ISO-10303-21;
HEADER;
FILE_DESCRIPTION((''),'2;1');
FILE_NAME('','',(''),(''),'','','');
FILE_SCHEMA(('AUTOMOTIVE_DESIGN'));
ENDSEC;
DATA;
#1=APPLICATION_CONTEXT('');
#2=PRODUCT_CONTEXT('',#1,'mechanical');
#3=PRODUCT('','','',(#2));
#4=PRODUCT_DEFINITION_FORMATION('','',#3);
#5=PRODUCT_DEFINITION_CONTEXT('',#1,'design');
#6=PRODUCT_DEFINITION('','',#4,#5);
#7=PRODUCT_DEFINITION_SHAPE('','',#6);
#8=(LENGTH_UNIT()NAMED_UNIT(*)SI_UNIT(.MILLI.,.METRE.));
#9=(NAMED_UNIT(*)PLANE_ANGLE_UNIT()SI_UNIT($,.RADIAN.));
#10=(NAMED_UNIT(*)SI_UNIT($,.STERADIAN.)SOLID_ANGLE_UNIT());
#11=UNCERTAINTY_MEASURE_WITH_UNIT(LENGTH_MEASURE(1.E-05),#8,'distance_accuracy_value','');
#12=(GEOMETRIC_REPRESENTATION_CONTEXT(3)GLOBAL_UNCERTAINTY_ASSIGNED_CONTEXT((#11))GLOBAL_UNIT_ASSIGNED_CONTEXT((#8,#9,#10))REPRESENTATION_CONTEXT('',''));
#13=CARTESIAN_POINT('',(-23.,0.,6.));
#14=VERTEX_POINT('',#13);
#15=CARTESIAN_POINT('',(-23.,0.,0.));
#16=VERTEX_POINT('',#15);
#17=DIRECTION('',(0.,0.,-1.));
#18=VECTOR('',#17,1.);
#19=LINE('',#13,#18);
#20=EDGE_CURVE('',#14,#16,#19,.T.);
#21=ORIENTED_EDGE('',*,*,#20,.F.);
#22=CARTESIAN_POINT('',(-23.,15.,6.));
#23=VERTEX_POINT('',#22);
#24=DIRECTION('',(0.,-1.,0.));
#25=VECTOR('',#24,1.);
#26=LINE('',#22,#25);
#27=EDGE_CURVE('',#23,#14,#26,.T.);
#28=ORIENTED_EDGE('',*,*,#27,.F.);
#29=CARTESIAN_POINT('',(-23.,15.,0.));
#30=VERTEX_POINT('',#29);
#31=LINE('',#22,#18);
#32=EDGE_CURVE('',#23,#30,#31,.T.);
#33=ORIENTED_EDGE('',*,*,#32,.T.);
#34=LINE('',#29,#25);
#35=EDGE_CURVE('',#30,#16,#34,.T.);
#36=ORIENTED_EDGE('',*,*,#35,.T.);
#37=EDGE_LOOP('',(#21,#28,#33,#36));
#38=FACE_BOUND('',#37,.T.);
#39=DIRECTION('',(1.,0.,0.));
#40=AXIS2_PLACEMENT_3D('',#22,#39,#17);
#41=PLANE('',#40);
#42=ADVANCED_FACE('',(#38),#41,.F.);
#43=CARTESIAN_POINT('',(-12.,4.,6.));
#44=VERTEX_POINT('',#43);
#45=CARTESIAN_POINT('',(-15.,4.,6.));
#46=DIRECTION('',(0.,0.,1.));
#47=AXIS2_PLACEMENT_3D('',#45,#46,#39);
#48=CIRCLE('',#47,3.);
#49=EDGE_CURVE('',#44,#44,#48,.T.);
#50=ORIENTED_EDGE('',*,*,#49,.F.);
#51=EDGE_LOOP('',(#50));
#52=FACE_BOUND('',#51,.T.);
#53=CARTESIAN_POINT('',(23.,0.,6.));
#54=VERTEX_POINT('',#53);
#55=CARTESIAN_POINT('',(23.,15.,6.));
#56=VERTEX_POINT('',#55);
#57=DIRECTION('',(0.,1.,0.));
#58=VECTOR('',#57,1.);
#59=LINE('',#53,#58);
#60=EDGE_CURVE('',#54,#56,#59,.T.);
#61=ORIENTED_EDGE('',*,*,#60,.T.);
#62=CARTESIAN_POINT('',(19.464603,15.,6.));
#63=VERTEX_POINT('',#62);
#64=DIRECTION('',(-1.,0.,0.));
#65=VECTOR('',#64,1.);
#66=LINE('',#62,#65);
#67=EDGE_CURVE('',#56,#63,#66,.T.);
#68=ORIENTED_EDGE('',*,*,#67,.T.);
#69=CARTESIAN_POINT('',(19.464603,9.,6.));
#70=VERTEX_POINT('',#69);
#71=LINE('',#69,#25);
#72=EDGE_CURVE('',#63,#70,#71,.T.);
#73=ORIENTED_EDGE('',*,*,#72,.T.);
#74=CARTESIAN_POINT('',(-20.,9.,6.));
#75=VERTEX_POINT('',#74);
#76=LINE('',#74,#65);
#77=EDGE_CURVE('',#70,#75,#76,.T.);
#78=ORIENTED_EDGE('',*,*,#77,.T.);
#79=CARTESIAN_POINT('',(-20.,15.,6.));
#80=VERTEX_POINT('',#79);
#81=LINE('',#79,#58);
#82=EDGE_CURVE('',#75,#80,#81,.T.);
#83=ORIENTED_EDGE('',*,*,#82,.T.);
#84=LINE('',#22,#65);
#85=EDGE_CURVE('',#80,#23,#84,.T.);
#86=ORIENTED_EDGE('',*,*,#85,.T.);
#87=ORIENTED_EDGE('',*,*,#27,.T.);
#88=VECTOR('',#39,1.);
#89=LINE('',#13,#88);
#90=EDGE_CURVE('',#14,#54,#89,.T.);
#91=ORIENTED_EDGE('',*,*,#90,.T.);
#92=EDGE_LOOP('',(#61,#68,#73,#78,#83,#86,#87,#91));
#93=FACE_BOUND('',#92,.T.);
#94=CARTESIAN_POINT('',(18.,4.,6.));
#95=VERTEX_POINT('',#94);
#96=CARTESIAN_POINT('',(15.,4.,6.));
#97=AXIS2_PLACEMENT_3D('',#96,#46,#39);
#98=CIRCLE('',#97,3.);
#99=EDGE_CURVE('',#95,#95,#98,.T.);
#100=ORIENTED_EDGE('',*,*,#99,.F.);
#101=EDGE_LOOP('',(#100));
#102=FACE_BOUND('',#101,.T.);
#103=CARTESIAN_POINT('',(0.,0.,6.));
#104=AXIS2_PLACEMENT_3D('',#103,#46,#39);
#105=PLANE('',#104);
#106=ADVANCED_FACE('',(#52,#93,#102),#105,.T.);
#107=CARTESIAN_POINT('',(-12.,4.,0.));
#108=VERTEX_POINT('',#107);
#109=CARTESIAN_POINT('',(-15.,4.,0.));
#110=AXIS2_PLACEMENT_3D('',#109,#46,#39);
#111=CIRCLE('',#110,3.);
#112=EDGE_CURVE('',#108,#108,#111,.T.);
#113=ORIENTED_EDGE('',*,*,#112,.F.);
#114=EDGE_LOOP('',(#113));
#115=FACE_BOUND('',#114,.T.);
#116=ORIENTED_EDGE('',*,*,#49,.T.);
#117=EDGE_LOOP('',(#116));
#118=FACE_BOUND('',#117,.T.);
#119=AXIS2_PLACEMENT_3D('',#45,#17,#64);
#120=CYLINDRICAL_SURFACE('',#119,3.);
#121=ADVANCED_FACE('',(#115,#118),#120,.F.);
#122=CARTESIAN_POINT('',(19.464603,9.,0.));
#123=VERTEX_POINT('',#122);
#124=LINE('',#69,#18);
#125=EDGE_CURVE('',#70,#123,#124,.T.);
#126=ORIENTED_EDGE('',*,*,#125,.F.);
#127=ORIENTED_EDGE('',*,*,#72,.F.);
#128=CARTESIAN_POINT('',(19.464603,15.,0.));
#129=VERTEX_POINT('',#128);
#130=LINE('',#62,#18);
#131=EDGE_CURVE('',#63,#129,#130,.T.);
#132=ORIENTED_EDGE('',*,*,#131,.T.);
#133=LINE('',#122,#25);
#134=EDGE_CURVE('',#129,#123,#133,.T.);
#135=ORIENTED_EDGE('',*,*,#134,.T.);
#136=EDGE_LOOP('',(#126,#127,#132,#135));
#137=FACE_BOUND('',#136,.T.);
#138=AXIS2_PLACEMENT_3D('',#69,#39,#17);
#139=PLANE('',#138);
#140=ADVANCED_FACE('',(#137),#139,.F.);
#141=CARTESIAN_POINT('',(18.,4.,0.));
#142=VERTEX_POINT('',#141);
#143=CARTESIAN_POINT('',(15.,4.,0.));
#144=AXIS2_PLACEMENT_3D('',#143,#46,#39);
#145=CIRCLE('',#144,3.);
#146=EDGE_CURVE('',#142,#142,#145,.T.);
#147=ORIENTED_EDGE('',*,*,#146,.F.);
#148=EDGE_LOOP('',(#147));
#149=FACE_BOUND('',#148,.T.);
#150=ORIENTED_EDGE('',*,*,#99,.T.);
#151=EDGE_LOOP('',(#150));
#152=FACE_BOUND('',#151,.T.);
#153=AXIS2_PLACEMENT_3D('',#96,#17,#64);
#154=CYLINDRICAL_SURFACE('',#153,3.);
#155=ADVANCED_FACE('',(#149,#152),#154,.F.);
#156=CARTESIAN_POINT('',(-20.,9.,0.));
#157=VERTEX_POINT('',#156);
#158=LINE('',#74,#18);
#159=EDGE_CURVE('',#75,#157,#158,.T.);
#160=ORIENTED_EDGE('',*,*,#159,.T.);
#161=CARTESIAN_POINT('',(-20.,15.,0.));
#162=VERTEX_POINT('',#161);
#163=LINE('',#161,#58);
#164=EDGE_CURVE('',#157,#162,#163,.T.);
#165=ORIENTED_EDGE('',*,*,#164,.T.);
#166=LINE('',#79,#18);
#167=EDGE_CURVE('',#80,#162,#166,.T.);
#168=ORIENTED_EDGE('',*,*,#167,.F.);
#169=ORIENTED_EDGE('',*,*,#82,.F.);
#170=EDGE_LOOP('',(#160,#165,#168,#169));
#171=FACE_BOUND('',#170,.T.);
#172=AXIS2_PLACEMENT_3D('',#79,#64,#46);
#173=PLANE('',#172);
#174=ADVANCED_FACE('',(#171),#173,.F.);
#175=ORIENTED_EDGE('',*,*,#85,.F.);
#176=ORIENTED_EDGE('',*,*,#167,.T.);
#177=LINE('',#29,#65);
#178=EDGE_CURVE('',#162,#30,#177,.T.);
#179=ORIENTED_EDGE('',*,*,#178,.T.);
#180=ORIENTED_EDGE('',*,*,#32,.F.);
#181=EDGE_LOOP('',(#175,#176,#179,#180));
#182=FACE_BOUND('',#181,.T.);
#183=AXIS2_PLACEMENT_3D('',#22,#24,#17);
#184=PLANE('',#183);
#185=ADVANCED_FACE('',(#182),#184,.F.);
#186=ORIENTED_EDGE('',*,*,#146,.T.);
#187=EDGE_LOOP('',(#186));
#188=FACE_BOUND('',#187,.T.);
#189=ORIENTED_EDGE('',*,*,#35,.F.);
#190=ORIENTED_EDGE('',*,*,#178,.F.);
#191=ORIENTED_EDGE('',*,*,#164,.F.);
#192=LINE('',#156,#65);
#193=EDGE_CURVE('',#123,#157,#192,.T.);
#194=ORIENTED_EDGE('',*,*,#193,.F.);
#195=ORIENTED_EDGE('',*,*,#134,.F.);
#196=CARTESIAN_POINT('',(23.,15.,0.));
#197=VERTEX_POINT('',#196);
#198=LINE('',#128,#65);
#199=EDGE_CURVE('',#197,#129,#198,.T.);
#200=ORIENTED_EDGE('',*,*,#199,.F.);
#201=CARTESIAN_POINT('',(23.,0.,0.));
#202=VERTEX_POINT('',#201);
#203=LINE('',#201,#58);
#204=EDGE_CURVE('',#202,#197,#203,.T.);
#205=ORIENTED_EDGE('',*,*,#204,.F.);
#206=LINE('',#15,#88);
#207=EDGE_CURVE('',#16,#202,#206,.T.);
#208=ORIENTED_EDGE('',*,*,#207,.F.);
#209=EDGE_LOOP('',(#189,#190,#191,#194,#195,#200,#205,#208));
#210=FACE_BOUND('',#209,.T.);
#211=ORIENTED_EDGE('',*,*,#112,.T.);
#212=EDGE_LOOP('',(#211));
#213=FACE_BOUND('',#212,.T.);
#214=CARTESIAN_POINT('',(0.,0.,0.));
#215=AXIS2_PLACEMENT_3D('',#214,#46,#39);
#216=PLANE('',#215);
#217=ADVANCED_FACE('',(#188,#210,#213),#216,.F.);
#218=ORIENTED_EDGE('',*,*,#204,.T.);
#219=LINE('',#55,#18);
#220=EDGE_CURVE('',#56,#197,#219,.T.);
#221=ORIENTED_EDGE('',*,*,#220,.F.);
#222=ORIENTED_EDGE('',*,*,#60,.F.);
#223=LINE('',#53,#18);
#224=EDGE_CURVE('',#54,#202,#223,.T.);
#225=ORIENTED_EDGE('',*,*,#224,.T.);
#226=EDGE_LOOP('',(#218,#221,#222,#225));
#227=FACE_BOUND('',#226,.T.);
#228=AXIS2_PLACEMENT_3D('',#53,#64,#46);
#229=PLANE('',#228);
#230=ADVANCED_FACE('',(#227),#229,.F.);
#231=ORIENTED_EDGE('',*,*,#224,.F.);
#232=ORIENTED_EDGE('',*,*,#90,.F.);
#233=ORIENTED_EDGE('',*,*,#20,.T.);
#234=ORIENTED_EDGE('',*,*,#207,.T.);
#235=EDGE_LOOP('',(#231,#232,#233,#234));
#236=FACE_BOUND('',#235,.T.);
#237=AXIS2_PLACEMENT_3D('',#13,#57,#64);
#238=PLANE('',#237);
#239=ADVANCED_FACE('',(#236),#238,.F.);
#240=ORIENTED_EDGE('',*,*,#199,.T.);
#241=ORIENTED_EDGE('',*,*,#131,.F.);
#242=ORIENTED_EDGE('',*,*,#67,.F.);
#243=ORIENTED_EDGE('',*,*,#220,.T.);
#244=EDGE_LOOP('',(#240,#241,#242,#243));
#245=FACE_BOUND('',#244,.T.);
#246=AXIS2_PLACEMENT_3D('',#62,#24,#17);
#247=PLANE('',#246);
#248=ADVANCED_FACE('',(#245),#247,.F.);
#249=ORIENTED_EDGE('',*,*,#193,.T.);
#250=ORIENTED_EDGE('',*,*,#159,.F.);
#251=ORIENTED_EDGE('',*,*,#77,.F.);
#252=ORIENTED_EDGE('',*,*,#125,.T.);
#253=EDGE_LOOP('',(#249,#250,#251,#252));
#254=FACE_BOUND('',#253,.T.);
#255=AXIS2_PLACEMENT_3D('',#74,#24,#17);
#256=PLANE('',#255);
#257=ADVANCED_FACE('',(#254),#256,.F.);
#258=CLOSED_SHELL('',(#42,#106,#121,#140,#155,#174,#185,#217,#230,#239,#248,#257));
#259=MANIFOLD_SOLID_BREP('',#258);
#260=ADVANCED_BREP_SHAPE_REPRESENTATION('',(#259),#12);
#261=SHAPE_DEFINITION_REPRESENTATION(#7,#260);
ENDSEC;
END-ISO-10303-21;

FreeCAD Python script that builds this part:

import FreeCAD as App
import Part
import Sketcher

V = App.Vector


def add_polygon(sketch, points):
    """Adds a closed chain of lines whose ends are joined by coincident constraints."""
    first, n = sketch.GeometryCount, len(points)
    for a, b in zip(points, points[1:] + points[:1]):
        sketch.addGeometry(Part.LineSegment(App.Vector(*a, 0), App.Vector(*b, 0)), False)
    for i in range(n):
        sketch.addConstraint(Sketcher.Constraint("Coincident", first + i, 2, first + (i + 1) % n, 1))

doc = App.newDocument("Part")
body = doc.addObject("PartDesign::Body", "Body")

sketch1 = body.newObject("Sketcher::SketchObject", "Sketch")
sketch1.AttachmentSupport = (doc.getObject("XY_Plane"), [""])
sketch1.MapMode = "FlatFace"
add_polygon(sketch1, [(-23, 0), (23, 0), (23, 15), (19.5, 15), (19.5, 9), (-20, 9), (-20, 15), (-23, 15)])
sketch1.addGeometry(Part.Circle(V(-15, 4, 0), V(0, 0, 1), 3), False)
sketch1.addGeometry(Part.Circle(V(15, 4, 0), V(0, 0, 1), 3), False)
sketch1.addConstraint([
    Sketcher.Constraint("Horizontal", 0),
    Sketcher.Constraint("Vertical", 1),
    Sketcher.Constraint("Horizontal", 2),
    Sketcher.Constraint("Vertical", 3),
    Sketcher.Constraint("Horizontal", 4),
    Sketcher.Constraint("Vertical", 5),
    Sketcher.Constraint("Horizontal", 6),
    Sketcher.Constraint("Vertical", 7),
    Sketcher.Constraint("Equal", 8, 9),
    Sketcher.Constraint("Symmetric", 0, 2, 7, 2, -1, 1),
    Sketcher.Constraint("Symmetric", 8, 3, 9, 3, -2),
    Sketcher.Constraint("Horizontal", 2, 2, 5, 2),
    Sketcher.Constraint("Diameter", 8, 6.0),
    Sketcher.Constraint("DistanceX", 0, 1, 0, 2, 46.0),
    Sketcher.Constraint("DistanceX", 6, 2, 6, 1, 3.0),
    Sketcher.Constraint("DistanceY", 1, 1, 1, 2, 15.0),
    Sketcher.Constraint("DistanceY", 3, 2, 3, 1, 6.0),
    Sketcher.Constraint("DistanceX", 8, 3, -1, 1, 15.0),
    Sketcher.Constraint("DistanceY", -1, 1, 8, 3, 4.0),
    Sketcher.Constraint("DistanceX", 2, 2, 2, 1, 3.535397),
])
pad1 = body.newObject("PartDesign::Pad", "Pad")
pad1.Profile = sketch1
pad1.Length = 6

doc.recompute()
